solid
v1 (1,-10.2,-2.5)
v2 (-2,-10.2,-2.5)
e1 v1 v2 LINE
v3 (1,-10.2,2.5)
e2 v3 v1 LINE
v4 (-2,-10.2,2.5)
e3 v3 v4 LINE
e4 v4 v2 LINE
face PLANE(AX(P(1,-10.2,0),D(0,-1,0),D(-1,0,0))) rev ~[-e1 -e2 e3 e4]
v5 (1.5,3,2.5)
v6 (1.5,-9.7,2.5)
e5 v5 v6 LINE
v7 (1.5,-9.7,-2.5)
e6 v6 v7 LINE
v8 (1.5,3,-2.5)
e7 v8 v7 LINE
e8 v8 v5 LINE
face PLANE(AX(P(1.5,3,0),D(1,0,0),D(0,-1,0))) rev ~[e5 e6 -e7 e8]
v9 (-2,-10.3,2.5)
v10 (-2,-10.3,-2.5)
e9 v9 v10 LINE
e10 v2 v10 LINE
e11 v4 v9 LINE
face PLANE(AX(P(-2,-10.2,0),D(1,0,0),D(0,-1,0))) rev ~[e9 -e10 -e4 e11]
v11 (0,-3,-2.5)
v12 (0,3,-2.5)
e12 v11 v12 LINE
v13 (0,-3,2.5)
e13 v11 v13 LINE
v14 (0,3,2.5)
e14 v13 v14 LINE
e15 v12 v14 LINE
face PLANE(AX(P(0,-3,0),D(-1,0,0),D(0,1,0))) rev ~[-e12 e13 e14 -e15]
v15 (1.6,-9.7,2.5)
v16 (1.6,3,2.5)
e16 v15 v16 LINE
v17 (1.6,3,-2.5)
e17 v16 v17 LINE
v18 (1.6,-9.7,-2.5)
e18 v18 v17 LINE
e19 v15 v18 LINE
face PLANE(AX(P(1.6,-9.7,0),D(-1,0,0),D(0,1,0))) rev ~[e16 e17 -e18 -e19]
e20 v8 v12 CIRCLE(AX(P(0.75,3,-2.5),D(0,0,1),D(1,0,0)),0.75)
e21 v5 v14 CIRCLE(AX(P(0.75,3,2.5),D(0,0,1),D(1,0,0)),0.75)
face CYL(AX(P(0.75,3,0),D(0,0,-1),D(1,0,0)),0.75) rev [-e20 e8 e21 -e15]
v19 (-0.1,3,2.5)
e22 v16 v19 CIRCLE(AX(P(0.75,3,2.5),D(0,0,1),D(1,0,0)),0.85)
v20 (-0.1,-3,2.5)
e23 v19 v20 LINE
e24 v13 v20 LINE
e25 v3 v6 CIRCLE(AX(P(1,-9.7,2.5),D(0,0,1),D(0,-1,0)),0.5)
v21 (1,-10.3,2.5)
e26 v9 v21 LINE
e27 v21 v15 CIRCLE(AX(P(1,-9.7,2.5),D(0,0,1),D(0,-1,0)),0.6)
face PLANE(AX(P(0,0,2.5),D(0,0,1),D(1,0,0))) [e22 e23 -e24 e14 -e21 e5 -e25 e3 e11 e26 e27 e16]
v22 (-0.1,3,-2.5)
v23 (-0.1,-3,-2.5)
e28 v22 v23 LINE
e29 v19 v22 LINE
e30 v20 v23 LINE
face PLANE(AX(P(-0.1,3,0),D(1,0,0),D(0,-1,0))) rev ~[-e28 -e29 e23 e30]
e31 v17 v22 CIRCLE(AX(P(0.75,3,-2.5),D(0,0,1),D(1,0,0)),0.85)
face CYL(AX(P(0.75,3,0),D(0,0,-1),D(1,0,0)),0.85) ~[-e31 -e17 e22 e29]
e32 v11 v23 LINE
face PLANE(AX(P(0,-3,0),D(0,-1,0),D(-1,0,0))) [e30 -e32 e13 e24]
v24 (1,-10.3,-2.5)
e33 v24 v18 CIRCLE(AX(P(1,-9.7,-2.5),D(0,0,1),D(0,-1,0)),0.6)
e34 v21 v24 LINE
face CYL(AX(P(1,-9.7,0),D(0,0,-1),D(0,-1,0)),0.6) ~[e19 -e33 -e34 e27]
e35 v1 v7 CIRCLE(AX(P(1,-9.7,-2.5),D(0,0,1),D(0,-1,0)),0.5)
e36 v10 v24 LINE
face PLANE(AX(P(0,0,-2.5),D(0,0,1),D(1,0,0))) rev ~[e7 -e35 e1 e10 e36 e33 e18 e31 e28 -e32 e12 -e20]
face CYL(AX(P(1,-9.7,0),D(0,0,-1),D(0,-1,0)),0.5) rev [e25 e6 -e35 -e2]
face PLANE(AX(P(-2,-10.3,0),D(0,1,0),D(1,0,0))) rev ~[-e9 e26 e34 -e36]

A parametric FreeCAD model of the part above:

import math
import FreeCAD as App
import Part
import Sketcher
from FreeCAD import Vector

doc = App.newDocument("Part")
body = doc.addObject("PartDesign::Body", "Body")

sketch1 = doc.addObject("Sketcher::SketchObject", "Sketch")
body.addObject(sketch1)
sketch1.AttachmentSupport = (doc.XY_Plane, [""])
sketch1.MapMode = "FlatFace"
sketch1.addGeometry([
    Part.LineSegment(Vector(-0.1, -3, 0), Vector(0, -3, 0)),
    Part.LineSegment(Vector(0, -3, 0), Vector(0, 3, 0)),
    Part.ArcOfCircle(Part.Circle(Vector(0.75, 3, 0), Vector(0, 0, 1), 0.75), math.radians(0), math.radians(180)),
    Part.LineSegment(Vector(1.5, 3, 0), Vector(1.5, -9.7, 0)),
    Part.ArcOfCircle(Part.Circle(Vector(1, -9.7, 0), Vector(0, 0, 1), 0.5), math.radians(-90), math.radians(0)),
    Part.LineSegment(Vector(1, -10.2, 0), Vector(-2, -10.2, 0)),
    Part.LineSegment(Vector(-2, -10.2, 0), Vector(-2, -10.3, 0)),
    Part.LineSegment(Vector(-2, -10.3, 0), Vector(1, -10.3, 0)),
    Part.ArcOfCircle(Part.Circle(Vector(1, -9.7, 0), Vector(0, 0, 1), 0.6), math.radians(-90), math.radians(0)),
    Part.LineSegment(Vector(1.6, -9.7, 0), Vector(1.6, 3, 0)),
    Part.ArcOfCircle(Part.Circle(Vector(0.75, 3, 0), Vector(0, 0, 1), 0.85), math.radians(0), math.radians(180)),
    Part.LineSegment(Vector(-0.1, 3, 0), Vector(-0.1, -3, 0)),
], False)
sketch1.addConstraint([
    Sketcher.Constraint("Coincident", 0, 2, 1, 1),
    Sketcher.Constraint("Tangent", 1, 2, 2, 2),
    Sketcher.Constraint("Tangent", 2, 1, 3, 1),
    Sketcher.Constraint("Tangent", 3, 2, 4, 2),
    Sketcher.Constraint("Tangent", 4, 1, 5, 1),
    Sketcher.Constraint("Coincident", 5, 2, 6, 1),
    Sketcher.Constraint("Coincident", 6, 2, 7, 1),
    Sketcher.Constraint("Tangent", 7, 2, 8, 1),
    Sketcher.Constraint("Tangent", 8, 2, 9, 1),
    Sketcher.Constraint("Tangent", 9, 2, 10, 1),
    Sketcher.Constraint("Tangent", 10, 2, 11, 1),
    Sketcher.Constraint("Coincident", 11, 2, 0, 1),
    Sketcher.Constraint("Horizontal", 0),
    Sketcher.Constraint("Vertical", 1),
    Sketcher.Constraint("Vertical", 3),
    Sketcher.Constraint("Horizontal", 5),
    Sketcher.Constraint("Vertical", 6),
    Sketcher.Constraint("Horizontal", 7),
    Sketcher.Constraint("Vertical", 9),
    Sketcher.Constraint("Vertical", 11),
    Sketcher.Constraint("Coincident", 8, 3, 4, 3),
    Sketcher.Constraint("Coincident", 10, 3, 2, 3),
    Sketcher.Constraint("Symmetric", 0, 2, 1, 2, -1, 1),
    Sketcher.Constraint("Radius", 4, 0.5),
    Sketcher.Constraint("DistanceX", 5, 2, 5, 1, 3.0),
    Sketcher.Constraint("Radius", 2, 0.75),
    Sketcher.Constraint("DistanceX", 0, 1, 0, 2, 0.1),
    Sketcher.Constraint("DistanceY", -1, 1, 2, 3, 3.0),
    Sketcher.Constraint("DistanceY", 4, 1, -1, 1, 10.2),
])
pad1 = doc.addObject("PartDesign::Pad", "Pad")
body.addObject(pad1)
pad1.Profile = sketch1
pad1.Length = 5
pad1.Midplane = True

doc.recompute()
